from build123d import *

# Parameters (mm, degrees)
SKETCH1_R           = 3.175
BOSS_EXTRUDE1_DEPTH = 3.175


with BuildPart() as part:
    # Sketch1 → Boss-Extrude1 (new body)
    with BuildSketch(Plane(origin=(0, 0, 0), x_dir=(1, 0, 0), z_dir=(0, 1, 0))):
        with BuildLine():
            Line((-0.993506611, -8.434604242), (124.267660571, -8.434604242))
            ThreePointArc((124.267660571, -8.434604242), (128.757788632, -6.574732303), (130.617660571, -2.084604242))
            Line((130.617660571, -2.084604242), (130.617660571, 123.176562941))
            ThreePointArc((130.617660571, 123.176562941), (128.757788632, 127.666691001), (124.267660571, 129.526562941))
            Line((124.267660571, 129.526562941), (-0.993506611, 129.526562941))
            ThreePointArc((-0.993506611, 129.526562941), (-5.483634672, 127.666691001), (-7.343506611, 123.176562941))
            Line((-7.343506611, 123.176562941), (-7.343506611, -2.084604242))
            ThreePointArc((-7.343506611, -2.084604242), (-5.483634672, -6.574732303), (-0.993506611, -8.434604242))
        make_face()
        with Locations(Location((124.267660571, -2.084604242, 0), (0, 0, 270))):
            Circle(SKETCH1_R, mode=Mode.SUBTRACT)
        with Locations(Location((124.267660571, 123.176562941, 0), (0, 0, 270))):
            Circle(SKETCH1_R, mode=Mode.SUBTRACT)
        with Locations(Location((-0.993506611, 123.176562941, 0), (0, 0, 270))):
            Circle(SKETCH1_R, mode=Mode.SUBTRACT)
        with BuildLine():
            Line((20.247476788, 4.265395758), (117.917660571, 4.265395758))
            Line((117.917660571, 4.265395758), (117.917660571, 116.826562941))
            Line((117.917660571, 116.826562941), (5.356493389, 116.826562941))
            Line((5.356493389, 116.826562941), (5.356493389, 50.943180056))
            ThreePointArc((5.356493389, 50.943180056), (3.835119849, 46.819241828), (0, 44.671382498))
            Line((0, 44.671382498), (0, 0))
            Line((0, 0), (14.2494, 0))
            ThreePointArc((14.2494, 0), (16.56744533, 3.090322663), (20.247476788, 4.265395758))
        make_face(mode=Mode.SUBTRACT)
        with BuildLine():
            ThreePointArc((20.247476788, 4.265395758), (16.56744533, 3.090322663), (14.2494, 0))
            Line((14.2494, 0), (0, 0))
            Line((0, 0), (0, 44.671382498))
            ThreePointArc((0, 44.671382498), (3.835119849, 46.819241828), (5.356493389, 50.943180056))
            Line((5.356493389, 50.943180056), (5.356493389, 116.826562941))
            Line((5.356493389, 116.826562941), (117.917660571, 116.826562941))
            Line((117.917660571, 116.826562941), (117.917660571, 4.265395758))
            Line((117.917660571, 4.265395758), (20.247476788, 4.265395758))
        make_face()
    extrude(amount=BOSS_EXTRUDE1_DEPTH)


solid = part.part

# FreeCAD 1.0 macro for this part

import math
import FreeCAD as App
import Part
import Sketcher
from FreeCAD import Vector
Q = App.Units.Quantity

doc = App.newDocument("Part")
body = doc.addObject("PartDesign::Body", "Body")

sketch1 = doc.addObject("Sketcher::SketchObject", "Sketch")
body.addObject(sketch1)
sketch1.AttachmentSupport = (doc.XZ_Plane, [""])
sketch1.MapMode = "FlatFace"
sketch1.addGeometry(Part.LineSegment(Vector(-1, 8.4, 0), Vector(124.3, 8.4, 0)), False)
sketch1.addGeometry(Part.ArcOfCircle(Part.Circle(Vector(124.3, 2.1, 0), Vector(0, 0, 1), 6.3), math.radians(0), math.radians(90)), False)
sketch1.addGeometry(Part.LineSegment(Vector(130.6, 2.1, 0), Vector(130.6, -123.2, 0)), False)
sketch1.addGeometry(Part.ArcOfCircle(Part.Circle(Vector(124.3, -123.2, 0), Vector(0, 0, 1), 6.3), math.radians(-90), math.radians(0)), False)
sketch1.addGeometry(Part.LineSegment(Vector(124.3, -129.5, 0), Vector(-1, -129.5, 0)), False)
sketch1.addGeometry(Part.ArcOfCircle(Part.Circle(Vector(-1, -123.2, 0), Vector(0, 0, 1), 6.3), math.radians(180), math.radians(270)), False)
sketch1.addGeometry(Part.LineSegment(Vector(-7.3, -123.2, 0), Vector(-7.3, 2.1, 0)), False)
sketch1.addGeometry(Part.ArcOfCircle(Part.Circle(Vector(-1, 2.1, 0), Vector(0, 0, 1), 6.3), math.radians(90), math.radians(180)), False)
sketch1.addGeometry(Part.Circle(Vector(124.3, 2.1, 0), Vector(0, 0, 1), 3.2), False)
sketch1.addGeometry(Part.Circle(Vector(-1, -123.2, 0), Vector(0, 0, 1), 3.2), False)
sketch1.addGeometry(Part.Circle(Vector(124.3, -123.2, 0), Vector(0, 0, 1), 3.2), False)
sketch1.addConstraint(Sketcher.Constraint("Tangent", 0, 2, 1, 2))
sketch1.addConstraint(Sketcher.Constraint("Tangent", 1, 1, 2, 1))
sketch1.addConstraint(Sketcher.Constraint("Tangent", 2, 2, 3, 2))
sketch1.addConstraint(Sketcher.Constraint("Tangent", 3, 1, 4, 1))
sketch1.addConstraint(Sketcher.Constraint("Tangent", 4, 2, 5, 2))
sketch1.addConstraint(Sketcher.Constraint("Tangent", 5, 1, 6, 1))
sketch1.addConstraint(Sketcher.Constraint("Tangent", 6, 2, 7, 2))
sketch1.addConstraint(Sketcher.Constraint("Tangent", 7, 1, 0, 1))
sketch1.addConstraint(Sketcher.Constraint("Horizontal", 0))
sketch1.addConstraint(Sketcher.Constraint("Vertical", 2))
sketch1.addConstraint(Sketcher.Constraint("Horizontal", 4))
sketch1.addConstraint(Sketcher.Constraint("Vertical", 6))
sketch1.addConstraint(Sketcher.Constraint("Coincident", 8, 3, 1, 3))
sketch1.addConstraint(Sketcher.Constraint("Coincident", 9, 3, 5, 3))
sketch1.addConstraint(Sketcher.Constraint("Coincident", 10, 3, 3, 3))
sketch1.addConstraint(Sketcher.Constraint("Equal", 1, 3))
sketch1.addConstraint(Sketcher.Constraint("Equal", 3, 5))
sketch1.addConstraint(Sketcher.Constraint("Equal", 5, 7))
sketch1.addConstraint(Sketcher.Constraint("Equal", 8, 9))
sketch1.addConstraint(Sketcher.Constraint("Equal", 9, 10))
sketch1.addConstraint(Sketcher.Constraint("Equal", 4, 2))
sketch1.addConstraint(Sketcher.Constraint("Diameter", 8, Q("0.25 in")))
sketch1.addConstraint(Sketcher.Constraint("Radius", 1, Q("0.25 in")))
sketch1.addConstraint(Sketcher.Constraint("DistanceX", 0, 1, 0, 2, Q("125.261167 mm")))
sketch1.addConstraint(Sketcher.Constraint("DistanceX", -1, 1, 1, 3, Q("124.267661 mm")))
sketch1.addConstraint(Sketcher.Constraint("DistanceY", -1, 1, 1, 3, Q("2.084604 mm")))
pad1 = doc.addObject("PartDesign::Pad", "Pad")
body.addObject(pad1)
pad1.Profile = sketch1
pad1.Length = Q("0.125 in")
pad1.Reversed = True

doc.recompute()
